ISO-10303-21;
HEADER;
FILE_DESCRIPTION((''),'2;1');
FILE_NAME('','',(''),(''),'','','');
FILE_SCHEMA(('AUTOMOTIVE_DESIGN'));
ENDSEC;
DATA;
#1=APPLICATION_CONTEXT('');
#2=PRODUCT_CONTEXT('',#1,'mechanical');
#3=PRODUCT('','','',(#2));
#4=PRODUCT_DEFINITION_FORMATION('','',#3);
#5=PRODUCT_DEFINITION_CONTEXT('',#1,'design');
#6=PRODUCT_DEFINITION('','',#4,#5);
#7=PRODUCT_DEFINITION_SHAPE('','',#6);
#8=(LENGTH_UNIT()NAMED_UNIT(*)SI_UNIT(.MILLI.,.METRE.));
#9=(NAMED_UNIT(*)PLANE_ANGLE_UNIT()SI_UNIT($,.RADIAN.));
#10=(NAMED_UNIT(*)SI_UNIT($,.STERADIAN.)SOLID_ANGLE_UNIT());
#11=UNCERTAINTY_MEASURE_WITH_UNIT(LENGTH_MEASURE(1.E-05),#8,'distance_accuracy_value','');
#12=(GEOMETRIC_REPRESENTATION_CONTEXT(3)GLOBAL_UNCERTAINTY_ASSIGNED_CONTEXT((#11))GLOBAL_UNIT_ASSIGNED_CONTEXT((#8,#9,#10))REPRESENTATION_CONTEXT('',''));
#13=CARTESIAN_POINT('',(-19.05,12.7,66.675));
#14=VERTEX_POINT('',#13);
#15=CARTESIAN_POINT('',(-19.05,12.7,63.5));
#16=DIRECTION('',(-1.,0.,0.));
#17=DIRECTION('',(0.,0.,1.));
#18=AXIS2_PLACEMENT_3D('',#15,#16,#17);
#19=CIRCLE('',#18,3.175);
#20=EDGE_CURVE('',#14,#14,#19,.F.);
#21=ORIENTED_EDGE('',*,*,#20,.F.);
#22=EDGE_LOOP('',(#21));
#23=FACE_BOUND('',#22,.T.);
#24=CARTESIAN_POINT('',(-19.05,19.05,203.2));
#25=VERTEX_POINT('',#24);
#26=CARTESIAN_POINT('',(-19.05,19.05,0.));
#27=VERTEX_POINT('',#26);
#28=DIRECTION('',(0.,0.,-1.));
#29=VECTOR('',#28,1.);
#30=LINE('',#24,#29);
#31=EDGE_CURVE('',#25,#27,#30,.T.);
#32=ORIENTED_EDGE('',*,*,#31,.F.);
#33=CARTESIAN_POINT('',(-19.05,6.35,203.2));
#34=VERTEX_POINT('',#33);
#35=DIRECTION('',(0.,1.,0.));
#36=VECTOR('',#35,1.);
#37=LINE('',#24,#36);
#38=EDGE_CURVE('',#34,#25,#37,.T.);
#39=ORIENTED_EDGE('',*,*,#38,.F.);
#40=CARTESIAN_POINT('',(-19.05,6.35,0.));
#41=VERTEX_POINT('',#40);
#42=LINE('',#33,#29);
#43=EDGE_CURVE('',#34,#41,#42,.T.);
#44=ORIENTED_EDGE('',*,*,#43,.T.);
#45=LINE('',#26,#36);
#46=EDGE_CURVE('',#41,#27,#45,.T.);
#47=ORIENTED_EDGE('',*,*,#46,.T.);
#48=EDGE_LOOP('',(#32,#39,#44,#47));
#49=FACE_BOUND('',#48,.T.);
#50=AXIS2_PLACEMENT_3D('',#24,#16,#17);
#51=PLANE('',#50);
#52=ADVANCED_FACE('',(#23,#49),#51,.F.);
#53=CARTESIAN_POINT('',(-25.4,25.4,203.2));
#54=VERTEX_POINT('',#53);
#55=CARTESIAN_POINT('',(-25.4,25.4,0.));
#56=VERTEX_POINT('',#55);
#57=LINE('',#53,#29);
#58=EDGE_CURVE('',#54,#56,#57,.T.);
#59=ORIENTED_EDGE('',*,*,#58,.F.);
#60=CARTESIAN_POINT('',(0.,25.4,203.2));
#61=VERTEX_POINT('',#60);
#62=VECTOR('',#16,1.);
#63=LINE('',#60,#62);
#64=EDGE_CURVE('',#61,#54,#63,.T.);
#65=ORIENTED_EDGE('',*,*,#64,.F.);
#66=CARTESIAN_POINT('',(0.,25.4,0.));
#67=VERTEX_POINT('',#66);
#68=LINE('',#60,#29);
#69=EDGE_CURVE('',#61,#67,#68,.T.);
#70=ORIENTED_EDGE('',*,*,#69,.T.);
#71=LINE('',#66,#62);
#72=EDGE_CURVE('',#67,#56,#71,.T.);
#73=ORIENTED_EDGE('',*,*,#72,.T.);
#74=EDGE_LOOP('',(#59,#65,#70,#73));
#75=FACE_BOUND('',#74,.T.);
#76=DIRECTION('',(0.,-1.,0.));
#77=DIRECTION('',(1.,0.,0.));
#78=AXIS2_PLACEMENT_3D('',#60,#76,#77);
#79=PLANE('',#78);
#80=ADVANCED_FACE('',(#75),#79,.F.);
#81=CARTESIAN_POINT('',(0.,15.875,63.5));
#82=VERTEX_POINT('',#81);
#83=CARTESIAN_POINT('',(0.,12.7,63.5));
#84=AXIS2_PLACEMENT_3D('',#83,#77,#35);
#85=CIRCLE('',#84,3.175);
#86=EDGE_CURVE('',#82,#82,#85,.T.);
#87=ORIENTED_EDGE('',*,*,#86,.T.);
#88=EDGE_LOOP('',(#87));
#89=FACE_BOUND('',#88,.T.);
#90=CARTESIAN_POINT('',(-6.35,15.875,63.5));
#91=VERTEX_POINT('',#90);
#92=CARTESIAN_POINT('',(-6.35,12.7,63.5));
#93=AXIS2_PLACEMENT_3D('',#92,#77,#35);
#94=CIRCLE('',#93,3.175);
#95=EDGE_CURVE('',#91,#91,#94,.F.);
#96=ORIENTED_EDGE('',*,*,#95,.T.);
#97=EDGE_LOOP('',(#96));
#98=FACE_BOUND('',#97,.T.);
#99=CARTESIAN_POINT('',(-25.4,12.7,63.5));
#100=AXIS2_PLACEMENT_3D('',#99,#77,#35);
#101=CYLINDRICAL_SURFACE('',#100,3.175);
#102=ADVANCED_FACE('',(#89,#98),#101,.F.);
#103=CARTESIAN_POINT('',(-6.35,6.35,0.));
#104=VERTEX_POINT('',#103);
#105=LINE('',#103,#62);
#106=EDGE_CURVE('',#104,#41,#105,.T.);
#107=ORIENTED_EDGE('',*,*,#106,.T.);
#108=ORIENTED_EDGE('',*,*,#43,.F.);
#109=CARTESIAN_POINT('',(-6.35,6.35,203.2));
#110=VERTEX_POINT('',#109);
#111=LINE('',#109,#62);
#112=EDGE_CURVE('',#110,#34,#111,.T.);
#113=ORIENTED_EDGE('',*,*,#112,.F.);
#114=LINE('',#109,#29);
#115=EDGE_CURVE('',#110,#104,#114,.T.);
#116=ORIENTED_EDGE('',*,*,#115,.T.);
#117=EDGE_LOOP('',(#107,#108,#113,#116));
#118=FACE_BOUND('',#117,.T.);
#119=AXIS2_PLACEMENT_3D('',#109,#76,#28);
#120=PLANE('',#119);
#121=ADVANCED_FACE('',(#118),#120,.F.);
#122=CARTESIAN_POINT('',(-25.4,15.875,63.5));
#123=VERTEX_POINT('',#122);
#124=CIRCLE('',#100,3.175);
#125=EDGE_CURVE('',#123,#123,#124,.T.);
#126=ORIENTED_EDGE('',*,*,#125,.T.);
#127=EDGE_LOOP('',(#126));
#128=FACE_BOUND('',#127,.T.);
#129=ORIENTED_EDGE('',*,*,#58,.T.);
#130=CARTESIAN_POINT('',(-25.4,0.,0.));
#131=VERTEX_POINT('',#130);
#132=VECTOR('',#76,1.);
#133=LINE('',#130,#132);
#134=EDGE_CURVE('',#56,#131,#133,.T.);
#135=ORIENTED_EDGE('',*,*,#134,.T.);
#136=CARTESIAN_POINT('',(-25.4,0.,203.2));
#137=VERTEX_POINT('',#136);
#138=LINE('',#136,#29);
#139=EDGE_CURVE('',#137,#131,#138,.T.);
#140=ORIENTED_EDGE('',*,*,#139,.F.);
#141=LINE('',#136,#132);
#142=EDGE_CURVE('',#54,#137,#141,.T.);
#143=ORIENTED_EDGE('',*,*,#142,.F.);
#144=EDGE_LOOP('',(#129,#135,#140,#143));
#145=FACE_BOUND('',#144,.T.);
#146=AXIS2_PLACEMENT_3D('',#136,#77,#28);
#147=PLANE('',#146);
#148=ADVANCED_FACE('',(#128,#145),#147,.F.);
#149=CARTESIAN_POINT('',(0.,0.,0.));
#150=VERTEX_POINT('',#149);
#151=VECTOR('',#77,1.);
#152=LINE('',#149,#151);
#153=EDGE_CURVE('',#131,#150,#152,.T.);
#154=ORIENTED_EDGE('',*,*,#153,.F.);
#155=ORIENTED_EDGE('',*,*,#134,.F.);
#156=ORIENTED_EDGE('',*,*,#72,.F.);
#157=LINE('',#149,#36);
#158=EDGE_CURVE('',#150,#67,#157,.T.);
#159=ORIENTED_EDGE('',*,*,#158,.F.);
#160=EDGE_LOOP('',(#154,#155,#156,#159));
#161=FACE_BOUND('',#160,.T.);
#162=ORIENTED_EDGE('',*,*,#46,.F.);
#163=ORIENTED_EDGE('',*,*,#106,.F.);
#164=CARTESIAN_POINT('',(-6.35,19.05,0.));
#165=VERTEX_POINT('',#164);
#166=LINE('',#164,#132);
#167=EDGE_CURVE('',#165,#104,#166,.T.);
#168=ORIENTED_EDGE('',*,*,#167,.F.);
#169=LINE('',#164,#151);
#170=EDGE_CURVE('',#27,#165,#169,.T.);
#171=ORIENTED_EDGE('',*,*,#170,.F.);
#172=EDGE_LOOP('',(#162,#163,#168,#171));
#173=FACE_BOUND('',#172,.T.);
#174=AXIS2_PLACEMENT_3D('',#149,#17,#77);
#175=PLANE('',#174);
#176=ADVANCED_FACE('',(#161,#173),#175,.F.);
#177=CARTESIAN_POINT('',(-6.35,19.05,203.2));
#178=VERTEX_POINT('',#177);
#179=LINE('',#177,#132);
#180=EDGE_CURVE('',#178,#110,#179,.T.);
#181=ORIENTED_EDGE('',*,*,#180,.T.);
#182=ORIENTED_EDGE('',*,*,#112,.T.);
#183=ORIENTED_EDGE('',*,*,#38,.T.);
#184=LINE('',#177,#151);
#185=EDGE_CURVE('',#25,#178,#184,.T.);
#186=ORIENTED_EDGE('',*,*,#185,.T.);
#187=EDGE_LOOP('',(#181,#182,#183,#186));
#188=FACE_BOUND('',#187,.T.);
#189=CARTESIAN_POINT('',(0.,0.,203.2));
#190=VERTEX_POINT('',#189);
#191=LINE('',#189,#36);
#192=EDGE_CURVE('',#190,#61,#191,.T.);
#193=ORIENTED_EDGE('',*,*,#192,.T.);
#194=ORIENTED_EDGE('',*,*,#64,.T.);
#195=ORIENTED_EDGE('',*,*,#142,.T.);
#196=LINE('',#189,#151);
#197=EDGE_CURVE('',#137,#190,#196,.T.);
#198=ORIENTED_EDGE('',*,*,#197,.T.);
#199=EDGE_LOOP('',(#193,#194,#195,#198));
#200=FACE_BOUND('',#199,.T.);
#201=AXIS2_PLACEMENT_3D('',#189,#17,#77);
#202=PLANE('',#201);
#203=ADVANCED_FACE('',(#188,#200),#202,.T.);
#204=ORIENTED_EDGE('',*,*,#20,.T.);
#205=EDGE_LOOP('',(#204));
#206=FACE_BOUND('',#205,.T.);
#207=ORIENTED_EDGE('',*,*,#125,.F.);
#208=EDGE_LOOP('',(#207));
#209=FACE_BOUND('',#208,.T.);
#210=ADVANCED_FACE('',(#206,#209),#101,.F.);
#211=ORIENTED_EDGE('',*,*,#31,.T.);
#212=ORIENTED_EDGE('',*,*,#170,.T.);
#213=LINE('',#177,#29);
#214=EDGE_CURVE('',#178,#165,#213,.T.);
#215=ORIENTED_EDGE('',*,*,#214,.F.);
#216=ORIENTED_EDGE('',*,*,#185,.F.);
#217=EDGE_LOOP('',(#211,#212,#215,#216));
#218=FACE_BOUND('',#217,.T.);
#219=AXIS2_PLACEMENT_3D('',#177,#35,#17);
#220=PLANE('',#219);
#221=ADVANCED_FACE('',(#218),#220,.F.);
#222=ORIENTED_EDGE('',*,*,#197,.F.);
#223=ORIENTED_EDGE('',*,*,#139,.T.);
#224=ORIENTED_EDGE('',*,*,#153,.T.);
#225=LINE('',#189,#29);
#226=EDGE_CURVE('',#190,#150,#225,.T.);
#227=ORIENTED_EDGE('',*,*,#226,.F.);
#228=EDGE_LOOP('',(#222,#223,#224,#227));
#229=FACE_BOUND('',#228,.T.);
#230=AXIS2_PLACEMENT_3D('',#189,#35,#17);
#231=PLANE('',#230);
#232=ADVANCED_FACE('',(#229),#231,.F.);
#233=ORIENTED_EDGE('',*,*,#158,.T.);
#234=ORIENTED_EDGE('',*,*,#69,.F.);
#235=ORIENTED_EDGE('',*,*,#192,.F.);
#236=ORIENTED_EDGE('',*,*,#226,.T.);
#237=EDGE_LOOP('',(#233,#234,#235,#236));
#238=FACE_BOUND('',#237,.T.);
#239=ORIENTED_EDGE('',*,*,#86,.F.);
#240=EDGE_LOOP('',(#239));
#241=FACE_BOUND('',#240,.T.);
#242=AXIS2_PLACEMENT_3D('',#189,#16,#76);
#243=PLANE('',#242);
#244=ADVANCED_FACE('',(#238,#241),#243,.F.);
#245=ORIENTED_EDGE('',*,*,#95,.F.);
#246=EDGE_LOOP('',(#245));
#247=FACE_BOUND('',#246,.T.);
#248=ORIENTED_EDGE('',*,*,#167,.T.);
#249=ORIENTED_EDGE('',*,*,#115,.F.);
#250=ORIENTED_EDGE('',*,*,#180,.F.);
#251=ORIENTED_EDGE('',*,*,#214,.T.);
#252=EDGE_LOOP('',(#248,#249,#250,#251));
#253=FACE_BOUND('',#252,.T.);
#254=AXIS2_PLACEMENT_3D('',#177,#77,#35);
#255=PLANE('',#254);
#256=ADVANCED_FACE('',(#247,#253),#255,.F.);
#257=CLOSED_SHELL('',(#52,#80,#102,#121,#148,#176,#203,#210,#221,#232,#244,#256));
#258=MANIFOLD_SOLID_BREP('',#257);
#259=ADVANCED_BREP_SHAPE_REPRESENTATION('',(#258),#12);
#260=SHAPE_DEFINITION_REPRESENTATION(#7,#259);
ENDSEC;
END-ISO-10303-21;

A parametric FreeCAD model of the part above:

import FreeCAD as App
import Part
import Sketcher
from FreeCAD import Vector
Q = App.Units.Quantity


def add_polygon(sketch, points):
    """Adds a closed chain of lines whose ends are joined by coincident constraints."""
    first, n = sketch.GeometryCount, len(points)
    for a, b in zip(points, points[1:] + points[:1]):
        sketch.addGeometry(Part.LineSegment(App.Vector(*a, 0), App.Vector(*b, 0)), False)
    for i in range(n):
        sketch.addConstraint(Sketcher.Constraint("Coincident", first + i, 2, first + (i + 1) % n, 1))

doc = App.newDocument("Part")
params = doc.addObject("Spreadsheet::Sheet", "Params")
for row, (alias, value) in enumerate([
    ("sketch1_width", "1 in"),
    ("pad1_length", "8 in"),
    ("sketch2_diameter", "0.25 in"),
    ("sketch3_width", "0.5 in"),
], start=1):
    params.set(f"A{row}", alias)
    params.set(f"B{row}", "=" + value)
    params.setAlias(f"B{row}", alias)

body = doc.addObject("PartDesign::Body", "Body")

# Sketch on XY plane
sketch1 = body.newObject("Sketcher::SketchObject", "Sketch")
sketch1.AttachmentSupport = (doc.getObject("XY_Plane"), [""])
sketch1.MapMode = "FlatFace"
add_polygon(sketch1, [(-25, 25), (-25, 0), (0, 0), (0, 25)])  # lines 0-3
sketch1.addConstraint(Sketcher.Constraint("Vertical", 0))
sketch1.addConstraint(Sketcher.Constraint("Horizontal", 1))
sketch1.addConstraint(Sketcher.Constraint("Vertical", 2))
sketch1.addConstraint(Sketcher.Constraint("Horizontal", 3))
sketch1.addConstraint(Sketcher.Constraint("Coincident", 1, 2, -1, 1))
sketch1.addConstraint(Sketcher.Constraint("Equal", 3, 0))
sketch1.addConstraint(Sketcher.Constraint("DistanceX", 1, 1, 1, 2, Q("1 in")))
sketch1.setExpression("Constraints[10]", "Params.sketch1_width")
pad1 = body.newObject("PartDesign::Pad", "Pad")
pad1.Profile = sketch1
pad1.setExpression("Length", "Params.pad1_length")

# Sketch on YZ plane
sketch2 = body.newObject("Sketcher::SketchObject", "Sketch001")
sketch2.AttachmentSupport = (doc.getObject("YZ_Plane"), [""])
sketch2.MapMode = "FlatFace"
sketch2.addGeometry(Part.Circle(Vector(12.7, 63.5, 0), Vector(0, 0, 1), 3.2), False)
sketch2.addConstraint(Sketcher.Constraint("Diameter", 0, Q("0.25 in")))
sketch2.addConstraint(Sketcher.Constraint("DistanceX", -1, 1, 0, 3, Q("0.5 in")))
sketch2.addConstraint(Sketcher.Constraint("DistanceY", -1, 1, 0, 3, Q("2.5 in")))
sketch2.setExpression("Constraints[0]", "Params.sketch2_diameter")
pocket1 = body.newObject("PartDesign::Pocket", "Pocket")
pocket1.Profile = sketch2
pocket1.Type = "ThroughAll"

# Sketch on XY plane
sketch3 = body.newObject("Sketcher::SketchObject", "Sketch002")
sketch3.AttachmentSupport = (doc.getObject("XY_Plane"), [""])
sketch3.MapMode = "FlatFace"
add_polygon(sketch3, [(-6, 19), (-6, 6), (-19, 6), (-19, 19)])  # lines 0-3
sketch3.addConstraint(Sketcher.Constraint("Vertical", 0))
sketch3.addConstraint(Sketcher.Constraint("Horizontal", 1))
sketch3.addConstraint(Sketcher.Constraint("Vertical", 2))
sketch3.addConstraint(Sketcher.Constraint("Horizontal", 3))
sketch3.addConstraint(Sketcher.Constraint("Equal", 3, 0))
sketch3.addConstraint(Sketcher.Constraint("DistanceX", 1, 2, 1, 1, Q("0.5 in")))
sketch3.addConstraint(Sketcher.Constraint("DistanceX", 0, 2, -1, 1, Q("0.25 in")))
sketch3.addConstraint(Sketcher.Constraint("DistanceY", -1, 1, 0, 2, Q("0.25 in")))
sketch3.setExpression("Constraints[9]", "Params.sketch3_width")
pocket2 = body.newObject("PartDesign::Pocket", "Pocket001")
pocket2.Profile = sketch3
pocket2.Type = "ThroughAll"
pocket2.Reversed = True

doc.recompute()
